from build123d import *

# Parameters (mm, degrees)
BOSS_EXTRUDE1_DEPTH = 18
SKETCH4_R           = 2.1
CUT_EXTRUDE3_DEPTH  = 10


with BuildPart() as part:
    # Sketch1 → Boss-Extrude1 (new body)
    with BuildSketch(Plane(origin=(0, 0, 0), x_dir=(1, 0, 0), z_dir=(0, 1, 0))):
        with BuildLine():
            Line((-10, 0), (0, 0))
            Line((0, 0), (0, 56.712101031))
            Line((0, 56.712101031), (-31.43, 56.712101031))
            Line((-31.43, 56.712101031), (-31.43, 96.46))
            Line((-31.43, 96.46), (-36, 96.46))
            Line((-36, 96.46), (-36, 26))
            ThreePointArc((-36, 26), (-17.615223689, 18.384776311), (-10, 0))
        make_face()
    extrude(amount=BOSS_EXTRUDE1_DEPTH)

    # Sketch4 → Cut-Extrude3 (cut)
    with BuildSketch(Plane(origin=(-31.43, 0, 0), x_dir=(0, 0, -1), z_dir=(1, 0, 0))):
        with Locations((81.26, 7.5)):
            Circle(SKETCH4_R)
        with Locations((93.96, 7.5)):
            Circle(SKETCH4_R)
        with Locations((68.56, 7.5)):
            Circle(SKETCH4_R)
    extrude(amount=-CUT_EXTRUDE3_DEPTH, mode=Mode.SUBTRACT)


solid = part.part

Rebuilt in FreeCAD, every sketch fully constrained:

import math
import FreeCAD as App
import Part
import Sketcher
from FreeCAD import Vector

doc = App.newDocument("Part")
body = doc.addObject("PartDesign::Body", "Body")

sketch1 = doc.addObject("Sketcher::SketchObject", "Sketch")
body.addObject(sketch1)
sketch1.AttachmentSupport = (doc.XZ_Plane, [""])
sketch1.MapMode = "FlatFace"
sketch1.addGeometry([
    Part.LineSegment(Vector(-10, 0, 0), Vector(0, 0, 0)),
    Part.LineSegment(Vector(0, 0, 0), Vector(0, -56.7, 0)),
    Part.LineSegment(Vector(0, -56.7, 0), Vector(-31.4, -56.7, 0)),
    Part.LineSegment(Vector(-31.4, -56.7, 0), Vector(-31.4, -96.5, 0)),
    Part.LineSegment(Vector(-31.4, -96.5, 0), Vector(-36, -96.5, 0)),
    Part.LineSegment(Vector(-36, -96.5, 0), Vector(-36, -26, 0)),
    Part.ArcOfCircle(Part.Circle(Vector(-36, 0, 0), Vector(0, 0, 1), 26), math.radians(-90), math.radians(0)),
], False)
sketch1.addConstraint([
    Sketcher.Constraint("Coincident", 0, 2, 1, 1),
    Sketcher.Constraint("Coincident", 1, 2, 2, 1),
    Sketcher.Constraint("Coincident", 2, 2, 3, 1),
    Sketcher.Constraint("Coincident", 3, 2, 4, 1),
    Sketcher.Constraint("Coincident", 4, 2, 5, 1),
    Sketcher.Constraint("Coincident", 5, 2, 6, 1),
    Sketcher.Constraint("Coincident", 6, 2, 0, 1),
    Sketcher.Constraint("Horizontal", 0),
    Sketcher.Constraint("Vertical", 1),
    Sketcher.Constraint("Horizontal", 2),
    Sketcher.Constraint("Vertical", 3),
    Sketcher.Constraint("Horizontal", 4),
    Sketcher.Constraint("Vertical", 5),
    Sketcher.Constraint("Coincident", 0, 2, -1, 1),
    Sketcher.Constraint("PointOnObject", 6, 3, -1),
    Sketcher.Constraint("Vertical", 6, 3, 4, 2),
    Sketcher.Constraint("Radius", 6, 26.0),
    Sketcher.Constraint("DistanceX", 0, 1, 0, 2, 10.0),
    Sketcher.Constraint("DistanceX", 2, 2, 2, 1, 31.43),
    Sketcher.Constraint("DistanceY", 5, 1, 5, 2, 70.46),
    Sketcher.Constraint("DistanceY", 1, 2, 1, 1, 56.712101),
])
pad1 = doc.addObject("PartDesign::Pad", "Pad")
body.addObject(pad1)
pad1.Profile = sketch1
pad1.Length = 18
pad1.Reversed = True

sketch2 = doc.addObject("Sketcher::SketchObject", "Sketch001")
body.addObject(sketch2)
sketch2.AttachmentSupport = (doc.YZ_Plane, [""])
sketch2.MapMode = "FlatFace"
sketch2.AttachmentOffset = App.Placement(Vector(0, 0, -31.43), App.Rotation())
sketch2.addGeometry([
    Part.Circle(Vector(7.5, -81.3, 0), Vector(0, 0, 1), 2.1),
    Part.Circle(Vector(7.5, -94, 0), Vector(0, 0, 1), 2.1),
    Part.Circle(Vector(7.5, -68.6, 0), Vector(0, 0, 1), 2.1),
], False)
sketch2.addConstraint([
    Sketcher.Constraint("Equal", 0, 1),
    Sketcher.Constraint("Equal", 1, 2),
    Sketcher.Constraint("Vertical", 0, 3, 1, 3),
    Sketcher.Constraint("Vertical", 1, 3, 2, 3),
    Sketcher.Constraint("Diameter", 0, 4.2),
    Sketcher.Constraint("DistanceX", -1, 1, 0, 3, 7.5),
    Sketcher.Constraint("DistanceY", 1, 3, 0, 3, 12.7),
    Sketcher.Constraint("DistanceY", 0, 3, 2, 3, 12.7),
    Sketcher.Constraint("DistanceY", 0, 3, -1, 1, 81.26),
])
pocket1 = doc.addObject("PartDesign::Pocket", "Pocket")
body.addObject(pocket1)
pocket1.Profile = sketch2
pocket1.Length = 10

doc.recompute()
